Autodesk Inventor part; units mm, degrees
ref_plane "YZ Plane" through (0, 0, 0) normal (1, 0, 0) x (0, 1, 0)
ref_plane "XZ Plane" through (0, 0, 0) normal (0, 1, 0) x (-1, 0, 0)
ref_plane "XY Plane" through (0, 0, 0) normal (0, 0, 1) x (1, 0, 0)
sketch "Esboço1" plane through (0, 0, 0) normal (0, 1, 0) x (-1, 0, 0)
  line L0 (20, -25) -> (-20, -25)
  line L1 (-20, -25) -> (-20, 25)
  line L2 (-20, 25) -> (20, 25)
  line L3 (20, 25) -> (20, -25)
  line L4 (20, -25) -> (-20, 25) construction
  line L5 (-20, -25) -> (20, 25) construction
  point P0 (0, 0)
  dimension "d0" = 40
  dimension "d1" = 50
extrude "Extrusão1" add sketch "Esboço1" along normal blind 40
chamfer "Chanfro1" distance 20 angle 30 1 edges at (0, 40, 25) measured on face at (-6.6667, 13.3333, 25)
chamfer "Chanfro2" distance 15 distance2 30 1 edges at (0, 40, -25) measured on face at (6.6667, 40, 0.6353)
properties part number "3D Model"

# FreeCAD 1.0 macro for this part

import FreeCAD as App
import Part
import Sketcher

V = App.Vector
Q = App.Units.Quantity


def edges_at(feature, points):
    """Names of the edges that pass closest to the given points."""
    edges = feature.Shape.Edges
    near = lambda p: min(range(len(edges)), key=lambda i: edges[i].distToShape(Part.Vertex(*p))[0])
    return sorted({f"Edge{near(p) + 1}" for p in points})


def add_polygon(sketch, points):
    """Adds a closed chain of lines whose ends are joined by coincident constraints."""
    first, n = sketch.GeometryCount, len(points)
    for a, b in zip(points, points[1:] + points[:1]):
        sketch.addGeometry(Part.LineSegment(App.Vector(*a, 0), App.Vector(*b, 0)), False)
    for i in range(n):
        sketch.addConstraint(Sketcher.Constraint("Coincident", first + i, 2, first + (i + 1) % n, 1))

doc = App.newDocument("Part")
body = doc.addObject("PartDesign::Body", "Body")

# Sketch on XZ plane
sketch1 = body.newObject("Sketcher::SketchObject", "Sketch")
sketch1.AttachmentSupport = (doc.getObject("XZ_Plane"), [""])
sketch1.MapMode = "FlatFace"
add_polygon(sketch1, [(20, -25), (-20, -25), (-20, 25), (20, 25)])  # lines 0-3
sketch1.addConstraint([
    Sketcher.Constraint("Horizontal", 0),
    Sketcher.Constraint("Vertical", 1),
    Sketcher.Constraint("Horizontal", 2),
    Sketcher.Constraint("Vertical", 3),
    Sketcher.Constraint("Symmetric", 0, 2, 2, 2, -1, 1),
    Sketcher.Constraint("DistanceX", 0, 2, 0, 1, Q("40 mm")),
    Sketcher.Constraint("DistanceY", 1, 1, 1, 2, Q("50 mm")),
])
pad1 = body.newObject("PartDesign::Pad", "Pad")
pad1.Profile = sketch1
pad1.Length = 40
pad1.Reversed = True
doc.recompute()

chamfer = body.newObject("PartDesign::Chamfer", "Chamfer")
chamfer.Base = (pad1, edges_at(pad1, [(0, 40, 25)]))
chamfer.ChamferType = "Distance and Angle"
chamfer.Size = 20
chamfer.Angle = 30
doc.recompute()

chamfer2 = body.newObject("PartDesign::Chamfer", "Chamfer001")
chamfer2.Base = (chamfer, edges_at(chamfer, [(0, 40, -25)]))
chamfer2.ChamferType = "Two distances"
chamfer2.Size = 15
chamfer2.Size2 = 30

doc.recompute()
